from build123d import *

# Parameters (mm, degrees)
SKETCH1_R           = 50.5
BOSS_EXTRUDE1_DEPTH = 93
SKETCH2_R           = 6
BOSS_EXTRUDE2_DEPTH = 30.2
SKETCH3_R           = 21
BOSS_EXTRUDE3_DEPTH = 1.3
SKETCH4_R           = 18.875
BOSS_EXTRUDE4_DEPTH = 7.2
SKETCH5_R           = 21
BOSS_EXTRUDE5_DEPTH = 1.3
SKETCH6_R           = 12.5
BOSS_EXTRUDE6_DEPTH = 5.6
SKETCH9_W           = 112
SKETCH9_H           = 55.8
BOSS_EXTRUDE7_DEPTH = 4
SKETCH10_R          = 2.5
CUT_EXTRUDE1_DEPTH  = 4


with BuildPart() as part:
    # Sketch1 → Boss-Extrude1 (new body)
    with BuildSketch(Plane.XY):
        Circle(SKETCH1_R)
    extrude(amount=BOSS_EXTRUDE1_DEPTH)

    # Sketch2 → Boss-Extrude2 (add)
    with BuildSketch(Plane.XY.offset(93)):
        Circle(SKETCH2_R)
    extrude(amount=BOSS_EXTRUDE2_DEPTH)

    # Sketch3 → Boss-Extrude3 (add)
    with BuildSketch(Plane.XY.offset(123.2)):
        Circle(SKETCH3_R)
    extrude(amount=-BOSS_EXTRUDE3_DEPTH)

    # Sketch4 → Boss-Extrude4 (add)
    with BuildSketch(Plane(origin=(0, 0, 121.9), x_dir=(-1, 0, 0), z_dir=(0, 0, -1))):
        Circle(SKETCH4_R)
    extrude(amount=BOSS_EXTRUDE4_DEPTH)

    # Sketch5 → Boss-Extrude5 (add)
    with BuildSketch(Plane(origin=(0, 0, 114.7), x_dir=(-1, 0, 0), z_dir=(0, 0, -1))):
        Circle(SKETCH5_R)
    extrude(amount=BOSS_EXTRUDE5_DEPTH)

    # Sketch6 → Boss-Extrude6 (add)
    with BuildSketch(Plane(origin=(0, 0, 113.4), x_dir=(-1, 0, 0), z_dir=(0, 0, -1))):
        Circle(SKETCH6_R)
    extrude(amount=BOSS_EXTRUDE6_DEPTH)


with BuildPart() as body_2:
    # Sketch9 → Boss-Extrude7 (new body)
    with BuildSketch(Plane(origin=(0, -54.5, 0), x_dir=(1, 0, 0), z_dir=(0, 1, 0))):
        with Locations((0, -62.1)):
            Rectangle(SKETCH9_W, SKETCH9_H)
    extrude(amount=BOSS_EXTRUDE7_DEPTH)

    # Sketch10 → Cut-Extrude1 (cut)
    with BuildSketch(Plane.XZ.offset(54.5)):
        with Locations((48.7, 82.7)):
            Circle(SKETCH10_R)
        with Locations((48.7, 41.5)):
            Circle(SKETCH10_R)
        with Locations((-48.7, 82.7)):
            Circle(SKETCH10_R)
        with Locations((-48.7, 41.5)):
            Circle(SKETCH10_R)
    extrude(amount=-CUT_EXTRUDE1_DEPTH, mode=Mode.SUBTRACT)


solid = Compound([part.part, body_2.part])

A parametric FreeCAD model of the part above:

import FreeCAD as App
import Part
import Sketcher

V = App.Vector
Q = App.Units.Quantity

doc = App.newDocument("Part")
body = doc.addObject("PartDesign::Body", "Body")

sketch1 = body.newObject("Sketcher::SketchObject", "Sketch")
sketch1.AttachmentSupport = (doc.getObject("XY_Plane"), [""])
sketch1.MapMode = "FlatFace"
sketch1.addGeometry(Part.Circle(V(0, 0, 0), V(0, 0, 1), 50), False)
sketch1.addConstraint([
    Sketcher.Constraint("Coincident", 0, 3, -1, 1),
    Sketcher.Constraint("Diameter", 0, Q("101 mm")),
])
pad1 = body.newObject("PartDesign::Pad", "Pad")
pad1.Profile = sketch1
pad1.Length = 93

sketch2 = body.newObject("Sketcher::SketchObject", "Sketch001")
sketch2.AttachmentSupport = (doc.getObject("XY_Plane"), [""])
sketch2.MapMode = "FlatFace"
sketch2.AttachmentOffset = App.Placement(V(0, 0, 93), App.Rotation())
sketch2.addGeometry(Part.Circle(V(0, 0, 0), V(0, 0, 1), 6), False)
sketch2.addConstraint([
    Sketcher.Constraint("Coincident", 0, 3, -1, 1),
    Sketcher.Constraint("Diameter", 0, Q("12 mm")),
])
pad2 = body.newObject("PartDesign::Pad", "Pad001")
pad2.Profile = sketch2
pad2.Length = 30.2

sketch3 = body.newObject("Sketcher::SketchObject", "Sketch002")
sketch3.AttachmentSupport = (doc.getObject("XY_Plane"), [""])
sketch3.MapMode = "FlatFace"
sketch3.AttachmentOffset = App.Placement(V(0, 0, 123.2), App.Rotation())
sketch3.addGeometry(Part.Circle(V(0, 0, 0), V(0, 0, 1), 21), False)
sketch3.addConstraint([
    Sketcher.Constraint("Coincident", 0, 3, -1, 1),
    Sketcher.Constraint("Diameter", 0, Q("42 mm")),
])
pad3 = body.newObject("PartDesign::Pad", "Pad002")
pad3.Profile = sketch3
pad3.Length = 1.3
pad3.Reversed = True

sketch4 = body.newObject("Sketcher::SketchObject", "Sketch003")
sketch4.AttachmentSupport = (doc.getObject("XY_Plane"), [""])
sketch4.MapMode = "FlatFace"
sketch4.AttachmentOffset = App.Placement(V(0, 0, 121.9), App.Rotation())
sketch4.addGeometry(Part.Circle(V(0, 0, 0), V(0, 0, 1), 19), False)
sketch4.addConstraint([
    Sketcher.Constraint("Coincident", 0, 3, -1, 1),
    Sketcher.Constraint("Diameter", 0, Q("37.75 mm")),
])
pad4 = body.newObject("PartDesign::Pad", "Pad003")
pad4.Profile = sketch4
pad4.Length = 7.2
pad4.Reversed = True

sketch5 = body.newObject("Sketcher::SketchObject", "Sketch004")
sketch5.AttachmentSupport = (doc.getObject("XY_Plane"), [""])
sketch5.MapMode = "FlatFace"
sketch5.AttachmentOffset = App.Placement(V(0, 0, 114.7), App.Rotation())
sketch5.addGeometry(Part.Circle(V(0, 0, 0), V(0, 0, 1), 21), False)
sketch5.addConstraint([
    Sketcher.Constraint("Coincident", 0, 3, -1, 1),
    Sketcher.Constraint("Diameter", 0, Q("42 mm")),
])
pad5 = body.newObject("PartDesign::Pad", "Pad004")
pad5.Profile = sketch5
pad5.Length = 1.3
pad5.Reversed = True

sketch6 = body.newObject("Sketcher::SketchObject", "Sketch005")
sketch6.AttachmentSupport = (doc.getObject("XY_Plane"), [""])
sketch6.MapMode = "FlatFace"
sketch6.AttachmentOffset = App.Placement(V(0, 0, 113.4), App.Rotation())
sketch6.addGeometry(Part.Circle(V(0, 0, 0), V(0, 0, 1), 12), False)
sketch6.addConstraint([
    Sketcher.Constraint("Coincident", 0, 3, -1, 1),
    Sketcher.Constraint("Diameter", 0, Q("25 mm")),
])
pad6 = body.newObject("PartDesign::Pad", "Pad005")
pad6.Profile = sketch6
pad6.Length = 5.6
pad6.Reversed = True
body2 = doc.addObject("PartDesign::Body", "Body001")

sketch7 = body2.newObject("Sketcher::SketchObject", "Sketch006")
sketch7.AttachmentSupport = (doc.getObject("XZ_Plane001"), [""])
sketch7.MapMode = "FlatFace"
sketch7.AttachmentOffset = App.Placement(V(0, 0, 54.5), App.Rotation())
sketch7.addGeometry([
    Part.LineSegment(V(-56, 34, 0), V(-56, 90, 0)),
    Part.LineSegment(V(-56, 90, 0), V(56, 90, 0)),
    Part.LineSegment(V(56, 90, 0), V(56, 34, 0)),
    Part.LineSegment(V(56, 34, 0), V(-56, 34, 0)),
], False)
sketch7.addConstraint([
    Sketcher.Constraint("Coincident", 0, 2, 1, 1),
    Sketcher.Constraint("Coincident", 1, 2, 2, 1),
    Sketcher.Constraint("Coincident", 2, 2, 3, 1),
    Sketcher.Constraint("Coincident", 3, 2, 0, 1),
    Sketcher.Constraint("Vertical", 0),
    Sketcher.Constraint("Horizontal", 1),
    Sketcher.Constraint("Vertical", 2),
    Sketcher.Constraint("Horizontal", 3),
    Sketcher.Constraint("DistanceX", 1, 1, 1, 2, Q("112 mm")),
    Sketcher.Constraint("DistanceY", 0, 1, 0, 2, Q("55.8 mm")),
    Sketcher.Constraint("DistanceX", 0, 2, -1, 1, Q("56 mm")),
    Sketcher.Constraint("DistanceY", -1, 1, 0, 2, Q("90 mm")),
])
pad7 = body2.newObject("PartDesign::Pad", "Pad006")
pad7.Profile = sketch7
pad7.Length = 4
pad7.Reversed = True

sketch8 = body2.newObject("Sketcher::SketchObject", "Sketch007")
sketch8.AttachmentSupport = (doc.getObject("XZ_Plane001"), [""])
sketch8.MapMode = "FlatFace"
sketch8.AttachmentOffset = App.Placement(V(0, 0, 54.5), App.Rotation())
sketch8.addGeometry([
    Part.Circle(V(48.7, 82.7, 0), V(0, 0, 1), 2.5),
    Part.Circle(V(48.7, 41.5, 0), V(0, 0, 1), 2.5),
    Part.Circle(V(-48.7, 82.7, 0), V(0, 0, 1), 2.5),
    Part.Circle(V(-48.7, 41.5, 0), V(0, 0, 1), 2.5),
], False)
sketch8.addConstraint([
    Sketcher.Constraint("Equal", 0, 1),
    Sketcher.Constraint("Equal", 1, 2),
    Sketcher.Constraint("Equal", 2, 3),
    Sketcher.Constraint("Symmetric", 0, 3, 2, 3, -2),
    Sketcher.Constraint("Symmetric", 1, 3, 3, 3, -2),
    Sketcher.Constraint("Vertical", 0, 3, 1, 3),
    Sketcher.Constraint("Diameter", 0, Q("5 mm")),
    Sketcher.Constraint("DistanceX", -1, 1, 0, 3, Q("48.7 mm")),
    Sketcher.Constraint("DistanceY", -1, 1, 0, 3, Q("82.7 mm")),
    Sketcher.Constraint("DistanceY", -1, 1, 1, 3, Q("41.5 mm")),
])
pocket1 = body2.newObject("PartDesign::Pocket", "Pocket")
pocket1.Profile = sketch8
pocket1.Length = 4

doc.recompute()
